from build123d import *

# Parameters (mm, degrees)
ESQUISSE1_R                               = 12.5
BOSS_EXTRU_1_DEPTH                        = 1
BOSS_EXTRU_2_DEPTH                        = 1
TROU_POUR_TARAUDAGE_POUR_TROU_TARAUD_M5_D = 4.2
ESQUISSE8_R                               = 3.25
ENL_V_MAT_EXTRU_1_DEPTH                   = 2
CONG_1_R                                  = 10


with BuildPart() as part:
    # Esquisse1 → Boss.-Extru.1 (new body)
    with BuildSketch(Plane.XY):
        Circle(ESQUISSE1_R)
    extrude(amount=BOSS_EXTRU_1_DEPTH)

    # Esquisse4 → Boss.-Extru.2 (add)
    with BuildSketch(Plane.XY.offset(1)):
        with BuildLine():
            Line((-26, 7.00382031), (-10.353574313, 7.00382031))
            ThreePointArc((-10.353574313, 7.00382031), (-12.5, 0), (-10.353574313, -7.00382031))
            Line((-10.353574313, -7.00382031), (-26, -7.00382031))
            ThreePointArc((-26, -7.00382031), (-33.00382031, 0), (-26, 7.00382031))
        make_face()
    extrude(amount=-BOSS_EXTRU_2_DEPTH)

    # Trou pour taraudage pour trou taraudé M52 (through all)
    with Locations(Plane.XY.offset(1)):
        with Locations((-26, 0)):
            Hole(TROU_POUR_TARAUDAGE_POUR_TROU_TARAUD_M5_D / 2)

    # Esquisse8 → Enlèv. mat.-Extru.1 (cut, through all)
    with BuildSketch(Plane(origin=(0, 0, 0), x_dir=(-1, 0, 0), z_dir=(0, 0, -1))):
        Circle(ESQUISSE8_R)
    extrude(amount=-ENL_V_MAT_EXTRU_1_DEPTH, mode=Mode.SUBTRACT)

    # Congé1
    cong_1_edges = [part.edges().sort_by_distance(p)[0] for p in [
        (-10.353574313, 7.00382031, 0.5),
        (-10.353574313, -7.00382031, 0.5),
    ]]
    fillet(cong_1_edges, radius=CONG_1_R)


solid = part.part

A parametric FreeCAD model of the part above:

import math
import FreeCAD as App
import Part
import Sketcher

V = App.Vector


def edges_at(feature, points):
    """Names of the edges that pass closest to the given points."""
    edges = feature.Shape.Edges
    near = lambda p: min(range(len(edges)), key=lambda i: edges[i].distToShape(Part.Vertex(*p))[0])
    return sorted({f"Edge{near(p) + 1}" for p in points})

doc = App.newDocument("Part")
body = doc.addObject("PartDesign::Body", "Body")

# Sketch on XY plane
sketch1 = doc.addObject("Sketcher::SketchObject", "Sketch")
body.addObject(sketch1)
sketch1.AttachmentSupport = (doc.XY_Plane, [""])
sketch1.MapMode = "FlatFace"
sketch1.addGeometry(Part.Circle(V(0, 0, 0), V(0, 0, 1), 12), False)
sketch1.addConstraint(Sketcher.Constraint("Coincident", 0, 3, -1, 1))
sketch1.addConstraint(Sketcher.Constraint("Diameter", 0, 25.0))
pad1 = doc.addObject("PartDesign::Pad", "Pad")
body.addObject(pad1)
pad1.Profile = sketch1
pad1.Length = 1

# Sketch on XY plane
sketch2 = doc.addObject("Sketcher::SketchObject", "Sketch001")
body.addObject(sketch2)
sketch2.AttachmentSupport = (doc.XY_Plane, [""])
sketch2.MapMode = "FlatFace"
sketch2.AttachmentOffset = App.Placement(V(0, 0, 1), App.Rotation())
sketch2.addGeometry(Part.LineSegment(V(-10, 7, 0), V(-26, 7, 0)), False)
sketch2.addGeometry(Part.ArcOfCircle(Part.Circle(V(-26, 0, 0), V(0, 0, 1), 7), math.radians(90), math.radians(270)), False)
sketch2.addGeometry(Part.LineSegment(V(-26, -7, 0), V(-10, -7, 0)), False)
sketch2.addGeometry(Part.ArcOfCircle(Part.Circle(V(0, 0, 0), V(0, 0, 1), 12), math.radians(146), math.radians(214)), False)
sketch2.addConstraint(Sketcher.Constraint("Tangent", 0, 2, 1, 1))
sketch2.addConstraint(Sketcher.Constraint("Tangent", 1, 2, 2, 1))
sketch2.addConstraint(Sketcher.Constraint("Coincident", 2, 2, 3, 2))
sketch2.addConstraint(Sketcher.Constraint("Coincident", 3, 1, 0, 1))
sketch2.addConstraint(Sketcher.Constraint("Horizontal", 0))
sketch2.addConstraint(Sketcher.Constraint("Horizontal", 2))
sketch2.addConstraint(Sketcher.Constraint("Coincident", 3, 3, -1, 1))
sketch2.addConstraint(Sketcher.Constraint("PointOnObject", 1, 3, -1))
sketch2.addConstraint(Sketcher.Constraint("Radius", 3, 12.5))
sketch2.addConstraint(Sketcher.Constraint("DistanceX", 1, 3, -1, 1, 26.0))
sketch2.addConstraint(Sketcher.Constraint("Radius", 1, 7.00382))
pad2 = doc.addObject("PartDesign::Pad", "Pad001")
body.addObject(pad2)
pad2.Profile = sketch2
pad2.Length = 1
pad2.Reversed = True

# Sketch on XY plane
sketch3 = doc.addObject("Sketcher::SketchObject", "Sketch002")
body.addObject(sketch3)
sketch3.AttachmentSupport = (doc.XY_Plane, [""])
sketch3.MapMode = "FlatFace"
sketch3.AttachmentOffset = App.Placement(V(0, 0, 1), App.Rotation())
sketch3.addGeometry(Part.Circle(V(-26, 0, 0), V(0, 0, 1), 2.1), False)
sketch3.addConstraint(Sketcher.Constraint("PointOnObject", 0, 3, -1))
sketch3.addConstraint(Sketcher.Constraint("Diameter", 0, 4.2))
sketch3.addConstraint(Sketcher.Constraint("DistanceX", 0, 3, -1, 1, 26.0))
doc.recompute()
hole = doc.addObject("PartDesign::Hole", "Hole")
body.addObject(hole)
hole.Profile = sketch3
hole.ThreadType = "None"
hole.Diameter = 4.2
hole.DepthType = "ThroughAll"

# Sketch on XY plane
sketch4 = doc.addObject("Sketcher::SketchObject", "Sketch003")
body.addObject(sketch4)
sketch4.AttachmentSupport = (doc.XY_Plane, [""])
sketch4.MapMode = "FlatFace"
sketch4.addGeometry(Part.Circle(V(0, 0, 0), V(0, 0, 1), 3.2), False)
sketch4.addConstraint(Sketcher.Constraint("Coincident", 0, 3, -1, 1))
sketch4.addConstraint(Sketcher.Constraint("Diameter", 0, 6.5))
pocket1 = doc.addObject("PartDesign::Pocket", "Pocket")
body.addObject(pocket1)
pocket1.Profile = sketch4
pocket1.Type = "ThroughAll"
pocket1.Reversed = True
doc.recompute()

fillet = doc.addObject("PartDesign::Fillet", "Fillet")
body.addObject(fillet)
fillet.Base = (pocket1, edges_at(pocket1, [(-10.354, 7.004, 0.5), (-10.354, -7.004, 0.5)]))
fillet.Radius = 10

doc.recompute()
